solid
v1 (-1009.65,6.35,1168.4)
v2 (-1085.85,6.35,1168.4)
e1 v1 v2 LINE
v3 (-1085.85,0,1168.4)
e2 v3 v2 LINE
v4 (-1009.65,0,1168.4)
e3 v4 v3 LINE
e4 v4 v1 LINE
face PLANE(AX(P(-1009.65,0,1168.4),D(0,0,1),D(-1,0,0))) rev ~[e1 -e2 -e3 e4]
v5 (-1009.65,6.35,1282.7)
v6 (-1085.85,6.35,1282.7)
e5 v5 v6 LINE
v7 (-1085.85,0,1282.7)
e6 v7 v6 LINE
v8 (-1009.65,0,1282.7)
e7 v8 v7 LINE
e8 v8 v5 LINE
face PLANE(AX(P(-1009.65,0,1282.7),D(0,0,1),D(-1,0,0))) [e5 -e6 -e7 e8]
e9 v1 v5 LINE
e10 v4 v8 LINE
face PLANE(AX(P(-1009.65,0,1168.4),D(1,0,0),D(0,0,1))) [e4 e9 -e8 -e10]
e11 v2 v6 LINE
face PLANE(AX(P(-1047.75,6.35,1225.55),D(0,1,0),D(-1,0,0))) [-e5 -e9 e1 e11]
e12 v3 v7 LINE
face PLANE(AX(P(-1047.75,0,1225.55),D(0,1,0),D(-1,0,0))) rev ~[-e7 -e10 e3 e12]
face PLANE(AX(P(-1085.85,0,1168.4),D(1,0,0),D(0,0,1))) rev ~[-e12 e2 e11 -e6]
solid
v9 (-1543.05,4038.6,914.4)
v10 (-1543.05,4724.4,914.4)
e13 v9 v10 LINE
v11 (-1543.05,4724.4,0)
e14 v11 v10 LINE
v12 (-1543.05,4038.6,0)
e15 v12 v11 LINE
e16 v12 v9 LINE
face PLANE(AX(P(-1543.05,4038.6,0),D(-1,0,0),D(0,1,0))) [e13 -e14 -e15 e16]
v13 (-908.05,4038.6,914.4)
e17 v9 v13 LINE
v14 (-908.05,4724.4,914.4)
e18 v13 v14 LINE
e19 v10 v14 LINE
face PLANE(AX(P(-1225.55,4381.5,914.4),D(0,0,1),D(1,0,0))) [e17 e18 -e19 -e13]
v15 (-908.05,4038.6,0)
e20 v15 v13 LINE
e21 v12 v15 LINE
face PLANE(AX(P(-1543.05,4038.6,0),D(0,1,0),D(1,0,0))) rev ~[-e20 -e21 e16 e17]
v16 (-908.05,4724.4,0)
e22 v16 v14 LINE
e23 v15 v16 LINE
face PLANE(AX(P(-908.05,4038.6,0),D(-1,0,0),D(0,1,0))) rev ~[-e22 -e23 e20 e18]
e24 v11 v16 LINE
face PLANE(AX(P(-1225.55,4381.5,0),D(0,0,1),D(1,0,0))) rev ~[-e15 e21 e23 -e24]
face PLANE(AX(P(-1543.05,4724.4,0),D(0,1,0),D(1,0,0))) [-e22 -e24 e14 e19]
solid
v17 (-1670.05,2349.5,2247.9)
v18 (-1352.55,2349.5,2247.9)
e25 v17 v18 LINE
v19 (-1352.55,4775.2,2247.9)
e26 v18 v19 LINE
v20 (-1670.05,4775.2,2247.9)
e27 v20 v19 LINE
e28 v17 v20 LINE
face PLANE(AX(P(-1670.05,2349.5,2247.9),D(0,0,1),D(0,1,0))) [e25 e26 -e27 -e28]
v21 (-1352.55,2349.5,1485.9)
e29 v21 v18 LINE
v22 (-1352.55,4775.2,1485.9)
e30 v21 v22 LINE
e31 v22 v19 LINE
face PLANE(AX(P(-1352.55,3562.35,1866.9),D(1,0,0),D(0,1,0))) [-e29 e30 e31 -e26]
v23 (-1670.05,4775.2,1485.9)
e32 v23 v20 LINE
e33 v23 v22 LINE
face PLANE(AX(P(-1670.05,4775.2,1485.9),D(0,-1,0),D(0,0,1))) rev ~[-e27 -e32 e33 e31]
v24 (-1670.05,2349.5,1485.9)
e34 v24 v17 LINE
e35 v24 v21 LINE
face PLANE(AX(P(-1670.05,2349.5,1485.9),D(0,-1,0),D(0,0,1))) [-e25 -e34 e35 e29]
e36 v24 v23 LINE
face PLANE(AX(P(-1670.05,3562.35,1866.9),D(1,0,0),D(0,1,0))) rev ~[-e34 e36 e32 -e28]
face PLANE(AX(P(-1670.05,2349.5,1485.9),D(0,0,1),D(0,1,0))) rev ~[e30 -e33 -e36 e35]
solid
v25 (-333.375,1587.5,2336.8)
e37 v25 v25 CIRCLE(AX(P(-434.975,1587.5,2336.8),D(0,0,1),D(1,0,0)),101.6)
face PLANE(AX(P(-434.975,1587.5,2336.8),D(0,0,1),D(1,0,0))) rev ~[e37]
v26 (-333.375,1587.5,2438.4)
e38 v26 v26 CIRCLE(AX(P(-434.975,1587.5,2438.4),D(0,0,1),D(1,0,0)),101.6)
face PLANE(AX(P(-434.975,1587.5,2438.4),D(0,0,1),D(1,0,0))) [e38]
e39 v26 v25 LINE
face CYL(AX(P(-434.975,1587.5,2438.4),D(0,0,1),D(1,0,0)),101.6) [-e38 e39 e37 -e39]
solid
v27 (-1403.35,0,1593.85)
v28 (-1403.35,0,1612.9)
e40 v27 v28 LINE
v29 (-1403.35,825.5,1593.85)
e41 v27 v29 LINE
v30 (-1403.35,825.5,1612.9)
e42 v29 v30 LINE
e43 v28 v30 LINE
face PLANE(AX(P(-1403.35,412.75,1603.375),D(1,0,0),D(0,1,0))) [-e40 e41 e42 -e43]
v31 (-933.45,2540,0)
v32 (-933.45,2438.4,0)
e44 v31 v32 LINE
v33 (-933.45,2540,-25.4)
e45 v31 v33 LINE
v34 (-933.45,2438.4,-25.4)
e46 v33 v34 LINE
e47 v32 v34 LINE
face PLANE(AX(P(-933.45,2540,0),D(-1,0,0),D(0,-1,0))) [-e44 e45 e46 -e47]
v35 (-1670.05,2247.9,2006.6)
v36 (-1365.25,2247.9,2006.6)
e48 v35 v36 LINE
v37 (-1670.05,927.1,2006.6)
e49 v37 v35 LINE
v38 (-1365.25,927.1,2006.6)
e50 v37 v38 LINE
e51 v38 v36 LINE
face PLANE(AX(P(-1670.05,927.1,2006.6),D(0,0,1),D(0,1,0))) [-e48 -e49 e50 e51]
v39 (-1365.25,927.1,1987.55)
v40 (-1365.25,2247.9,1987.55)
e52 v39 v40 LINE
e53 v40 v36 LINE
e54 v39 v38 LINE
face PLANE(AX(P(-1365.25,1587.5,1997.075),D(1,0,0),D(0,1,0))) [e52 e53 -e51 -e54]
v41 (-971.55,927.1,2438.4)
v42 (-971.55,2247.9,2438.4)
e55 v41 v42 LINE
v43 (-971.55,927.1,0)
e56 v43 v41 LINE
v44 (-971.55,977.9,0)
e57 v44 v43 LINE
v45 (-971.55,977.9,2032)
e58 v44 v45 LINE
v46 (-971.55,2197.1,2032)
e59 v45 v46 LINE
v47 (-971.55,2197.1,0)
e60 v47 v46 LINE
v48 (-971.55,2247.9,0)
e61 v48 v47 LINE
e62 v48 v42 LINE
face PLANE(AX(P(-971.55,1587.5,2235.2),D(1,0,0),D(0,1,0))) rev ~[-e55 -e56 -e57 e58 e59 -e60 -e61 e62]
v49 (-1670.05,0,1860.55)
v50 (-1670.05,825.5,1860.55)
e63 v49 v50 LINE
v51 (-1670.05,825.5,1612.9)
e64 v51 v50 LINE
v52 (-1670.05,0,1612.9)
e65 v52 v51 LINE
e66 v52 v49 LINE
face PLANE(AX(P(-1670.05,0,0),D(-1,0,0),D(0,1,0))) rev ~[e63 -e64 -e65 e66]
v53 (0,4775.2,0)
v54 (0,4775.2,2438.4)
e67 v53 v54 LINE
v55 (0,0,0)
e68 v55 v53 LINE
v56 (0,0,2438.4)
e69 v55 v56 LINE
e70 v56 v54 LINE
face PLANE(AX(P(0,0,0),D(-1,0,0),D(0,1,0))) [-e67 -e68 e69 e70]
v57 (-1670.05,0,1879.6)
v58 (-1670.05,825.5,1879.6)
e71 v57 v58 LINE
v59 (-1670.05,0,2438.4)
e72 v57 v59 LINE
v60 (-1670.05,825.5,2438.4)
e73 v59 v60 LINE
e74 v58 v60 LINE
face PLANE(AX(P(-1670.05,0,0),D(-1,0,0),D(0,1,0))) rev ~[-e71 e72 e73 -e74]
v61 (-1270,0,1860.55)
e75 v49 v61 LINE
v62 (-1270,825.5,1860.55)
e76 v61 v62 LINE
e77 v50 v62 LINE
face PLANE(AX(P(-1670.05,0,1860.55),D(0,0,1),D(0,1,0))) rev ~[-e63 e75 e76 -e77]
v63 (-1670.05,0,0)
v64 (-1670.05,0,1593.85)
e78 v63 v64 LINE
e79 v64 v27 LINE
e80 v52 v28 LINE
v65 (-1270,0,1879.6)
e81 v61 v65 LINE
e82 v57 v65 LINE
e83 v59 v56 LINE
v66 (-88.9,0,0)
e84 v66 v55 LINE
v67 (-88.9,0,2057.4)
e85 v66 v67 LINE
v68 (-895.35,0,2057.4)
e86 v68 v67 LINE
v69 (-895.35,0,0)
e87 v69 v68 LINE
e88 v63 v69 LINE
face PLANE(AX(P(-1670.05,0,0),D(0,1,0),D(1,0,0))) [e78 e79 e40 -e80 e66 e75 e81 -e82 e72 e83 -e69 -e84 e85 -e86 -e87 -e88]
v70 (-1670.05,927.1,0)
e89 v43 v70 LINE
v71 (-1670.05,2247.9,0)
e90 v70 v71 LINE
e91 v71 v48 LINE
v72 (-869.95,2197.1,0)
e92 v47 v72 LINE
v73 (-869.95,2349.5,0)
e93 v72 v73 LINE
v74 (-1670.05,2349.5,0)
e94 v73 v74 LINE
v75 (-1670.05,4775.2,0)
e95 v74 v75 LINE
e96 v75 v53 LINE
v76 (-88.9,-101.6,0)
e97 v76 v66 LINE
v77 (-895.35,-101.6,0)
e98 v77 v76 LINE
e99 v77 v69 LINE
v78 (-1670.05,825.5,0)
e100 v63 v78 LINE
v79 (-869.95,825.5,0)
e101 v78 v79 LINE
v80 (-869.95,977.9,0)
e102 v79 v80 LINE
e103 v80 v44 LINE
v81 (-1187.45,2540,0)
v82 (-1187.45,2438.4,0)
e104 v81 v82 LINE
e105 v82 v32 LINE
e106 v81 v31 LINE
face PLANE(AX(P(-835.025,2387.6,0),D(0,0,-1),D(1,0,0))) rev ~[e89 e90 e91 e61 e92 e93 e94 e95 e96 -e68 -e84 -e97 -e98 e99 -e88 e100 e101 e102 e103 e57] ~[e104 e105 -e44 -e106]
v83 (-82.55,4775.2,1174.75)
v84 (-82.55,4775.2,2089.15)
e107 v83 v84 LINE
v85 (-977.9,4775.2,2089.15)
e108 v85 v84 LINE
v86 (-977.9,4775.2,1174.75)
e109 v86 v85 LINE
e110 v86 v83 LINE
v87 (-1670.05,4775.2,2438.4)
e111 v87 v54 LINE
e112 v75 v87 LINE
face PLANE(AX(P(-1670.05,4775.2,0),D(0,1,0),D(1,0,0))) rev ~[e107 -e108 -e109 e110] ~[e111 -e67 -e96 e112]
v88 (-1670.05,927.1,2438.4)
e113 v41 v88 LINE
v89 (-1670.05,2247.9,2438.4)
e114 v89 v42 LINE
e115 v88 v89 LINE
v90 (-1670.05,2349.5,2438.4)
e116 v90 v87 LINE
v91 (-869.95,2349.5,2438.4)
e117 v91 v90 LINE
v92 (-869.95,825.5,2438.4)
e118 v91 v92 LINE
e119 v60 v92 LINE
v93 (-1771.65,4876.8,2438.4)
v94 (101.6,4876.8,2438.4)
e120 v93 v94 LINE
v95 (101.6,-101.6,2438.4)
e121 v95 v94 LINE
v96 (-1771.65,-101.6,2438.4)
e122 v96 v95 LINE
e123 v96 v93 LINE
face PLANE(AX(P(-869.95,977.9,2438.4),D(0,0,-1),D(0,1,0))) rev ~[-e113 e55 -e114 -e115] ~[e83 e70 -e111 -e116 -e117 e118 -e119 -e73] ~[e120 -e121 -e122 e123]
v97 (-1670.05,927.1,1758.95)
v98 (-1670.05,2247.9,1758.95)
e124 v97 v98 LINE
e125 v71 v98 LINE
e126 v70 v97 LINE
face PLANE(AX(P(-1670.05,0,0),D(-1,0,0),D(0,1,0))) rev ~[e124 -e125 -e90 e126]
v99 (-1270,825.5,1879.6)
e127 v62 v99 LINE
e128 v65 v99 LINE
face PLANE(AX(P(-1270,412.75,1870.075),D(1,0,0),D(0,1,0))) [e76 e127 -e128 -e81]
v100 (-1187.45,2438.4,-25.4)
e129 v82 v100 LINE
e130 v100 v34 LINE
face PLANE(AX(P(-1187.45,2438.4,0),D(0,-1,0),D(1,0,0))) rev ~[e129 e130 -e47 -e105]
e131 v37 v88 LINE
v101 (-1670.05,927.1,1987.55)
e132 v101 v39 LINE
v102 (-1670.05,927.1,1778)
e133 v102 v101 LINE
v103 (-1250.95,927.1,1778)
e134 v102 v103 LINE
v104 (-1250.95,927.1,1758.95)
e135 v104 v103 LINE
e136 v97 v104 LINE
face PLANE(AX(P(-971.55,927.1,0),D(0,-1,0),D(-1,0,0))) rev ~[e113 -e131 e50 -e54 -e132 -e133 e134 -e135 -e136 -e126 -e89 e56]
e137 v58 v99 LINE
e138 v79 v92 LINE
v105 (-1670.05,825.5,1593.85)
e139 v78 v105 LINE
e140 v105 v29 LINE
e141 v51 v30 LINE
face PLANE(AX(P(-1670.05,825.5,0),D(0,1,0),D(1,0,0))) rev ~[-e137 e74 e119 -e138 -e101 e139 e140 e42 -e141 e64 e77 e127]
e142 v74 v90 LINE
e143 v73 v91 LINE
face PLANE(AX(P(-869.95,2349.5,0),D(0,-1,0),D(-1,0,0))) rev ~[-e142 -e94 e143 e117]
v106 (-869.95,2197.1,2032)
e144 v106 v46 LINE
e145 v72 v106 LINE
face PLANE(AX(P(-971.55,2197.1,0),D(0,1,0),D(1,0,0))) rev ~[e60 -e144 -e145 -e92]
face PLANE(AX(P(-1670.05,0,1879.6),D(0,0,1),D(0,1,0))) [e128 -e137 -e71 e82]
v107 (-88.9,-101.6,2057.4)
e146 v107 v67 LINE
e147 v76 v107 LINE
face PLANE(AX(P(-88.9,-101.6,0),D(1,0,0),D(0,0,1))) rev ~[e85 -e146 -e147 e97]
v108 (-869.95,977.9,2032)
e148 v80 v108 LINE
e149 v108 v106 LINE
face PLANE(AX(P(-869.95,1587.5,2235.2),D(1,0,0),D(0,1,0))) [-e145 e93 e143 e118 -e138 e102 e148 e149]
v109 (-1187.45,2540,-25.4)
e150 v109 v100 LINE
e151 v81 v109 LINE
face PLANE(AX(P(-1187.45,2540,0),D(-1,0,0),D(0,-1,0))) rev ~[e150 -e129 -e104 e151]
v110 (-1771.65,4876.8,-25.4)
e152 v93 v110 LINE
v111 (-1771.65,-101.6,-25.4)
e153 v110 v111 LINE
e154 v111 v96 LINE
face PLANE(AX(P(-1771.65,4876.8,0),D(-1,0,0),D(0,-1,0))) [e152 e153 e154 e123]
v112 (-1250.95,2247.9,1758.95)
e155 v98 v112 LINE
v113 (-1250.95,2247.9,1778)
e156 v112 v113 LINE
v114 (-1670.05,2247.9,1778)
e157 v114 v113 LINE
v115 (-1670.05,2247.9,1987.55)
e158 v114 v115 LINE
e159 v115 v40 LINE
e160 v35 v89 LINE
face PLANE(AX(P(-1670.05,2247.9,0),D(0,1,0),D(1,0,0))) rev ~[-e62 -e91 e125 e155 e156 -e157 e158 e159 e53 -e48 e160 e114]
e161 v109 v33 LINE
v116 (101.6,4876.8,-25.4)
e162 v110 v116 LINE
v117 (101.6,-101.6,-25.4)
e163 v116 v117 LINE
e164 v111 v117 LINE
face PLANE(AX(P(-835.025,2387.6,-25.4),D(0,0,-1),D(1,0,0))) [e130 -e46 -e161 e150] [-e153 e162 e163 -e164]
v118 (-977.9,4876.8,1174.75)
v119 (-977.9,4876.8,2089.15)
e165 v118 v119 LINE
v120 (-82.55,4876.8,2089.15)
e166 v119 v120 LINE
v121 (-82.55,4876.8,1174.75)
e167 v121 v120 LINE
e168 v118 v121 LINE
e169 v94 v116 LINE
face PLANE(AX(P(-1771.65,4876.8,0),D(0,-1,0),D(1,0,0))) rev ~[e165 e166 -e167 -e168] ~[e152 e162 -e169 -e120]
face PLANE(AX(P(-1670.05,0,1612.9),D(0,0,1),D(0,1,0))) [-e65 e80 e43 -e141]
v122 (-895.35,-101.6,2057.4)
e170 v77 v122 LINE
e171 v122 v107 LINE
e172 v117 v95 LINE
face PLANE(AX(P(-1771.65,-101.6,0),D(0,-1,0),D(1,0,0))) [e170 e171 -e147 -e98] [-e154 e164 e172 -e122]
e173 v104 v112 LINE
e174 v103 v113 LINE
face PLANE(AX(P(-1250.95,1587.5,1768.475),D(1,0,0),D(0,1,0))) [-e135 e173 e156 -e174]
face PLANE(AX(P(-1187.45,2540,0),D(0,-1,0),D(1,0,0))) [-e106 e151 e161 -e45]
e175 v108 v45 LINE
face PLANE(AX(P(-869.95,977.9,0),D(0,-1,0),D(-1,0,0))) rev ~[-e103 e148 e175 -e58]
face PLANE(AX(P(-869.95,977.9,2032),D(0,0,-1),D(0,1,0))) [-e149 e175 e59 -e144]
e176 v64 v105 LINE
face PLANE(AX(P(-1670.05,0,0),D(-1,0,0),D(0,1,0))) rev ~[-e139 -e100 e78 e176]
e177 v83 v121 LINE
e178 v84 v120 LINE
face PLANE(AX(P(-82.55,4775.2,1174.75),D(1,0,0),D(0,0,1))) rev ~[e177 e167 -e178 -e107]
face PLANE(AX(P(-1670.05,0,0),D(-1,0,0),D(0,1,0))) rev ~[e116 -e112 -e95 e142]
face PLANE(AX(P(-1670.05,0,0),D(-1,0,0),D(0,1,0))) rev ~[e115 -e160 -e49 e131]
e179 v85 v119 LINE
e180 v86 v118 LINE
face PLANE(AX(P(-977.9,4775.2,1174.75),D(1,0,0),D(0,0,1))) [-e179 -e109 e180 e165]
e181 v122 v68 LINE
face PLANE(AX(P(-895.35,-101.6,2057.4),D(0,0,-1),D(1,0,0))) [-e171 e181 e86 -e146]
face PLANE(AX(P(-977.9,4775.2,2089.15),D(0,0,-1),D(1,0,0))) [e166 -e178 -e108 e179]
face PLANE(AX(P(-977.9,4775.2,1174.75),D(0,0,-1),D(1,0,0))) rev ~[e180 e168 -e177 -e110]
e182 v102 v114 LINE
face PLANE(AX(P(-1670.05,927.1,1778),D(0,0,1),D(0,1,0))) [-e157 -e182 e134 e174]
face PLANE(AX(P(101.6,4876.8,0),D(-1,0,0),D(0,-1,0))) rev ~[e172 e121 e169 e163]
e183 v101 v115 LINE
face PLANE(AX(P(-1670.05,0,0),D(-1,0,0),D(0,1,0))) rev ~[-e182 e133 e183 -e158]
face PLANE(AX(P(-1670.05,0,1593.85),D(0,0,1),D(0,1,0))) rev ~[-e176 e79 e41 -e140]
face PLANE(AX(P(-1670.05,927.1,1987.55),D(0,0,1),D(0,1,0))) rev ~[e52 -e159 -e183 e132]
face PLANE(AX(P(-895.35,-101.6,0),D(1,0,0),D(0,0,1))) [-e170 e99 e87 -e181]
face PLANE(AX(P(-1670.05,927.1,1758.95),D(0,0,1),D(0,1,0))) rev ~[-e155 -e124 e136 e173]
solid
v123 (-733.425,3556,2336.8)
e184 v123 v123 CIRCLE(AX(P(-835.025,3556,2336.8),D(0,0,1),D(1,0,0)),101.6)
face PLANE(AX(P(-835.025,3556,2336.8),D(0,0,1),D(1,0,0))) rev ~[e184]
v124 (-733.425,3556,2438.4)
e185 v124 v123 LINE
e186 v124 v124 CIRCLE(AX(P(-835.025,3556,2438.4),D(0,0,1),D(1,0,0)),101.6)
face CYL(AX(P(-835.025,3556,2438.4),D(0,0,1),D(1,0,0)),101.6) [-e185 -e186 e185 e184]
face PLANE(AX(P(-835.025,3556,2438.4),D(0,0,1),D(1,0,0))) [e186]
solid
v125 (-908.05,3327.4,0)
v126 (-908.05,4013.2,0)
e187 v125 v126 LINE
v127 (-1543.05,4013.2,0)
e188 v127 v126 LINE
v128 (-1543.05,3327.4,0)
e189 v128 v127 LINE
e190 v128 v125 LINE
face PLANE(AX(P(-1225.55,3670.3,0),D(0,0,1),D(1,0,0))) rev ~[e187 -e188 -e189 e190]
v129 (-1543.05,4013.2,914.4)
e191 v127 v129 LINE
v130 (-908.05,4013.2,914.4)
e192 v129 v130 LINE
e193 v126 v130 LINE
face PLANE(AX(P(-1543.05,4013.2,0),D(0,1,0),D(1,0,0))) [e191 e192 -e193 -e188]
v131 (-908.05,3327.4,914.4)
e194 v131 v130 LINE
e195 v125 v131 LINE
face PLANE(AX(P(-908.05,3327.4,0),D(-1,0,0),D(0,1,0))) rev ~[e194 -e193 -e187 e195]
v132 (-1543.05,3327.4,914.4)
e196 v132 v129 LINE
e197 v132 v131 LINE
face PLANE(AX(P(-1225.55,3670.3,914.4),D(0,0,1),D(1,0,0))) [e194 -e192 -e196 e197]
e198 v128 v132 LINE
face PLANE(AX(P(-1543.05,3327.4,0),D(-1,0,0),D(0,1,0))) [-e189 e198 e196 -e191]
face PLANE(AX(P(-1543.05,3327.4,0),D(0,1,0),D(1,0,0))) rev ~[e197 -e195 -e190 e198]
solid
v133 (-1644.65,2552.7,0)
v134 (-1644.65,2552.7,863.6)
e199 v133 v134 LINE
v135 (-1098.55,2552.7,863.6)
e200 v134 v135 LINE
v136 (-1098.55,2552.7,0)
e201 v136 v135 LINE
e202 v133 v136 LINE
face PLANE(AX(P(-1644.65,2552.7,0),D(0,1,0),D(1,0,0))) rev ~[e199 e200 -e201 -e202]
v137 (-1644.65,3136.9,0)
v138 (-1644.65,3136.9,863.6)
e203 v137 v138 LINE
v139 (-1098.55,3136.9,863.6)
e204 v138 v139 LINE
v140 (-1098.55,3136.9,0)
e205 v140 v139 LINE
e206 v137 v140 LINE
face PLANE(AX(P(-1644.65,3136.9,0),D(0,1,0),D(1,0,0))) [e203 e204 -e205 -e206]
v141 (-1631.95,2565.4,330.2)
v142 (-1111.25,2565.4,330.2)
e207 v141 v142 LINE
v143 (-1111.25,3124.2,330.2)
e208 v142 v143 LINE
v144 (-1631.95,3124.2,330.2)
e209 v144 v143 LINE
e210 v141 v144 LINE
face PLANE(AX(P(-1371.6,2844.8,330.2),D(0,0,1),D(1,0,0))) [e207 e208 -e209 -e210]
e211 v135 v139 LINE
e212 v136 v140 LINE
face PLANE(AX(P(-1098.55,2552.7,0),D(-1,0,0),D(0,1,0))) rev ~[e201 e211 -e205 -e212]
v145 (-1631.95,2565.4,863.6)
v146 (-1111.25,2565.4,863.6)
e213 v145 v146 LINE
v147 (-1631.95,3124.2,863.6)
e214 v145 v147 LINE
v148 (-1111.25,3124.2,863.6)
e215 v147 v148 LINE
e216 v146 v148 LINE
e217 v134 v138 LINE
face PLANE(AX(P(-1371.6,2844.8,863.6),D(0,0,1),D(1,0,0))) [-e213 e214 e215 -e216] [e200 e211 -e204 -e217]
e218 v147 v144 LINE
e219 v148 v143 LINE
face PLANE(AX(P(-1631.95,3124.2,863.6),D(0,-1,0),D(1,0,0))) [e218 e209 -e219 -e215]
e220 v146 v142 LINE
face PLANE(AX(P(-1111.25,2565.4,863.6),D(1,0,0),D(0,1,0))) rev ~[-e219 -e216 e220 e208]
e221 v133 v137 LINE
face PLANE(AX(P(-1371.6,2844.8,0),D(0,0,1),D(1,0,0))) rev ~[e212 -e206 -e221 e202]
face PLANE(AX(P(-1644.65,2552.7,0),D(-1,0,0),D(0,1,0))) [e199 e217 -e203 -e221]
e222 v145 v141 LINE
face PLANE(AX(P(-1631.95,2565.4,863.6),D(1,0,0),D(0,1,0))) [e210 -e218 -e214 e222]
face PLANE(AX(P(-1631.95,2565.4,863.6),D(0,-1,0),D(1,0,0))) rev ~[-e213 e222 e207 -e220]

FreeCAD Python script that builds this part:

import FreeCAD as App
import Part
import Sketcher

V = App.Vector
Q = App.Units.Quantity

doc = App.newDocument("Part")
body = doc.addObject("PartDesign::Body", "Body")

sketch1 = body.newObject("Sketcher::SketchObject", "Sketch")
sketch1.AttachmentSupport = (doc.getObject("XY_Plane"), [""])
sketch1.MapMode = "FlatFace"
sketch1.addGeometry(Part.LineSegment(V(-1771.65, 4876.8, 0), V(-1771.65, -101.6, 0)), False)
sketch1.addGeometry(Part.LineSegment(V(-1771.65, -101.6, 0), V(101.6, -101.6, 0)), False)
sketch1.addGeometry(Part.LineSegment(V(101.6, -101.6, 0), V(101.6, 4876.8, 0)), False)
sketch1.addGeometry(Part.LineSegment(V(101.6, 4876.8, 0), V(-1771.65, 4876.8, 0)), False)
sketch1.addGeometry(Part.LineSegment(V(0, 0, 0), V(-1670.05, 0, 0)), False)
sketch1.addGeometry(Part.LineSegment(V(-1670.05, 0, 0), V(-1670.05, 4775.2, 0)), False)
sketch1.addGeometry(Part.LineSegment(V(-1670.05, 4775.2, 0), V(0, 4775.2, 0)), False)
sketch1.addGeometry(Part.LineSegment(V(0, 4775.2, 0), V(0, 0, 0)), False)
sketch1.addConstraint(Sketcher.Constraint("Coincident", 0, 2, 1, 1))
sketch1.addConstraint(Sketcher.Constraint("Coincident", 1, 2, 2, 1))
sketch1.addConstraint(Sketcher.Constraint("Coincident", 2, 2, 3, 1))
sketch1.addConstraint(Sketcher.Constraint("Coincident", 3, 2, 0, 1))
sketch1.addConstraint(Sketcher.Constraint("Coincident", 4, 2, 5, 1))
sketch1.addConstraint(Sketcher.Constraint("Coincident", 5, 2, 6, 1))
sketch1.addConstraint(Sketcher.Constraint("Coincident", 6, 2, 7, 1))
sketch1.addConstraint(Sketcher.Constraint("Coincident", 7, 2, 4, 1))
sketch1.addConstraint(Sketcher.Constraint("Vertical", 0))
sketch1.addConstraint(Sketcher.Constraint("Horizontal", 1))
sketch1.addConstraint(Sketcher.Constraint("Vertical", 2))
sketch1.addConstraint(Sketcher.Constraint("Horizontal", 3))
sketch1.addConstraint(Sketcher.Constraint("Horizontal", 4))
sketch1.addConstraint(Sketcher.Constraint("Vertical", 5))
sketch1.addConstraint(Sketcher.Constraint("Horizontal", 6))
sketch1.addConstraint(Sketcher.Constraint("Vertical", 7))
sketch1.addConstraint(Sketcher.Constraint("Coincident", 7, 2, -1, 1))
sketch1.addConstraint(Sketcher.Constraint("DistanceY", 0, 2, 0, 1, Q("196 in")))
sketch1.addConstraint(Sketcher.Constraint("DistanceY", 5, 1, 5, 2, Q("188 in")))
sketch1.addConstraint(Sketcher.Constraint("DistanceY", 0, 2, -1, 1, Q("4 in")))
sketch1.addConstraint(Sketcher.Constraint("DistanceX", -1, 1, 1, 2, Q("4 in")))
sketch1.addConstraint(Sketcher.Constraint("DistanceX", 0, 2, 4, 2, Q("4 in")))
sketch1.addConstraint(Sketcher.Constraint("DistanceX", 1, 1, 1, 2, Q("73.75 in")))
pad1 = body.newObject("PartDesign::Pad", "Pad")
pad1.Profile = sketch1
pad1.Length = Q("96 in")

sketch2 = body.newObject("Sketcher::SketchObject", "Sketch001")
sketch2.AttachmentSupport = (doc.getObject("XZ_Plane"), [""])
sketch2.MapMode = "FlatFace"
sketch2.AttachmentOffset = App.Placement(V(0, 0, 4 * 25.4), App.Rotation())
sketch2.addGeometry(Part.LineSegment(V(-895.35, 2057.4, 0), V(-895.35, 0, 0)), False)
sketch2.addGeometry(Part.LineSegment(V(-895.35, 0, 0), V(-88.9, 0, 0)), False)
sketch2.addGeometry(Part.LineSegment(V(-88.9, 0, 0), V(-88.9, 2057.4, 0)), False)
sketch2.addGeometry(Part.LineSegment(V(-88.9, 2057.4, 0), V(-895.35, 2057.4, 0)), False)
sketch2.addConstraint(Sketcher.Constraint("Coincident", 0, 2, 1, 1))
sketch2.addConstraint(Sketcher.Constraint("Coincident", 1, 2, 2, 1))
sketch2.addConstraint(Sketcher.Constraint("Coincident", 2, 2, 3, 1))
sketch2.addConstraint(Sketcher.Constraint("Coincident", 3, 2, 0, 1))
sketch2.addConstraint(Sketcher.Constraint("Vertical", 0))
sketch2.addConstraint(Sketcher.Constraint("Horizontal", 1))
sketch2.addConstraint(Sketcher.Constraint("Vertical", 2))
sketch2.addConstraint(Sketcher.Constraint("Horizontal", 3))
sketch2.addConstraint(Sketcher.Constraint("PointOnObject", 0, 2, -1))
sketch2.addConstraint(Sketcher.Constraint("DistanceY", 0, 2, 0, 1, Q("81 in")))
sketch2.addConstraint(Sketcher.Constraint("DistanceX", 1, 1, 1, 2, Q("31.75 in")))
sketch2.addConstraint(Sketcher.Constraint("DistanceX", 1, 2, -1, 1, Q("3.5 in")))
pocket1 = body.newObject("PartDesign::Pocket", "Pocket")
pocket1.Profile = sketch2
pocket1.Length = Q("4 in")

sketch3 = body.newObject("Sketcher::SketchObject", "Sketch002")
sketch3.AttachmentSupport = (doc.getObject("XZ_Plane"), [""])
sketch3.MapMode = "FlatFace"
sketch3.AttachmentOffset = App.Placement(V(0, 0, -188 * 25.4), App.Rotation())
sketch3.addGeometry(Part.LineSegment(V(-977.9, 2089.15, 0), V(-977.9, 1174.75, 0)), False)
sketch3.addGeometry(Part.LineSegment(V(-977.9, 1174.75, 0), V(-82.55, 1174.75, 0)), False)
sketch3.addGeometry(Part.LineSegment(V(-82.55, 1174.75, 0), V(-82.55, 2089.15, 0)), False)
sketch3.addGeometry(Part.LineSegment(V(-82.55, 2089.15, 0), V(-977.9, 2089.15, 0)), False)
sketch3.addConstraint(Sketcher.Constraint("Coincident", 0, 2, 1, 1))
sketch3.addConstraint(Sketcher.Constraint("Coincident", 1, 2, 2, 1))
sketch3.addConstraint(Sketcher.Constraint("Coincident", 2, 2, 3, 1))
sketch3.addConstraint(Sketcher.Constraint("Coincident", 3, 2, 0, 1))
sketch3.addConstraint(Sketcher.Constraint("Vertical", 0))
sketch3.addConstraint(Sketcher.Constraint("Horizontal", 1))
sketch3.addConstraint(Sketcher.Constraint("Vertical", 2))
sketch3.addConstraint(Sketcher.Constraint("Horizontal", 3))
sketch3.addConstraint(Sketcher.Constraint("DistanceY", 0, 2, 0, 1, Q("36 in")))
sketch3.addConstraint(Sketcher.Constraint("DistanceX", 1, 1, 1, 2, Q("35.25 in")))
sketch3.addConstraint(Sketcher.Constraint("DistanceX", 0, 2, -1, 1, Q("38.5 in")))
sketch3.addConstraint(Sketcher.Constraint("DistanceY", -1, 1, 0, 2, Q("46.25 in")))
pocket2 = body.newObject("PartDesign::Pocket", "Pocket001")
pocket2.Profile = sketch3
pocket2.Type = "ThroughAll"

sketch4 = body.newObject("Sketcher::SketchObject", "Sketch003")
sketch4.AttachmentSupport = (doc.getObject("XY_Plane"), [""])
sketch4.MapMode = "FlatFace"
sketch4.addGeometry(Part.LineSegment(V(-1771.65, -101.6, 0), V(-1771.65, 4876.8, 0)), False)
sketch4.addGeometry(Part.LineSegment(V(-1771.65, 4876.8, 0), V(101.6, 4876.8, 0)), False)
sketch4.addGeometry(Part.LineSegment(V(101.6, 4876.8, 0), V(101.6, -101.6, 0)), False)
sketch4.addGeometry(Part.LineSegment(V(101.6, -101.6, 0), V(-1771.65, -101.6, 0)), False)
sketch4.addGeometry(Part.LineSegment(V(-933.45, 2540, 0), V(-1187.45, 2540, 0)), False)
sketch4.addGeometry(Part.LineSegment(V(-1187.45, 2540, 0), V(-1187.45, 2438.4, 0)), False)
sketch4.addGeometry(Part.LineSegment(V(-1187.45, 2438.4, 0), V(-933.45, 2438.4, 0)), False)
sketch4.addGeometry(Part.LineSegment(V(-933.45, 2438.4, 0), V(-933.45, 2540, 0)), False)
sketch4.addConstraint(Sketcher.Constraint("Coincident", 0, 2, 1, 1))
sketch4.addConstraint(Sketcher.Constraint("Coincident", 1, 2, 2, 1))
sketch4.addConstraint(Sketcher.Constraint("Coincident", 2, 2, 3, 1))
sketch4.addConstraint(Sketcher.Constraint("Coincident", 3, 2, 0, 1))
sketch4.addConstraint(Sketcher.Constraint("Coincident", 4, 2, 5, 1))
sketch4.addConstraint(Sketcher.Constraint("Coincident", 5, 2, 6, 1))
sketch4.addConstraint(Sketcher.Constraint("Coincident", 6, 2, 7, 1))
sketch4.addConstraint(Sketcher.Constraint("Coincident", 7, 2, 4, 1))
sketch4.addConstraint(Sketcher.Constraint("Vertical", 0))
sketch4.addConstraint(Sketcher.Constraint("Horizontal", 1))
sketch4.addConstraint(Sketcher.Constraint("Vertical", 2))
sketch4.addConstraint(Sketcher.Constraint("Horizontal", 3))
sketch4.addConstraint(Sketcher.Constraint("Horizontal", 4))
sketch4.addConstraint(Sketcher.Constraint("Vertical", 5))
sketch4.addConstraint(Sketcher.Constraint("Horizontal", 6))
sketch4.addConstraint(Sketcher.Constraint("Vertical", 7))
sketch4.addConstraint(Sketcher.Constraint("DistanceX", 4, 2, 4, 1, Q("10 in")))
sketch4.addConstraint(Sketcher.Constraint("DistanceY", 0, 1, 0, 2, Q("196 in")))
sketch4.addConstraint(Sketcher.Constraint("DistanceY", 5, 2, 5, 1, Q("4 in")))
sketch4.addConstraint(Sketcher.Constraint("DistanceY", -1, 1, 0, 2, Q("192 in")))
sketch4.addConstraint(Sketcher.Constraint("DistanceX", -1, 1, 1, 2, Q("4 in")))
sketch4.addConstraint(Sketcher.Constraint("DistanceY", -1, 1, 4, 2, Q("100 in")))
sketch4.addConstraint(Sketcher.Constraint("DistanceX", 0, 2, 4, 2, Q("23 in")))
sketch4.addConstraint(Sketcher.Constraint("DistanceX", 1, 1, 1, 2, Q("73.75 in")))
pad2 = body.newObject("PartDesign::Pad", "Pad001")
pad2.Profile = sketch4
pad2.Length = Q("1 in")
pad2.Reversed = True

sketch5 = body.newObject("Sketcher::SketchObject", "Sketch004")
sketch5.AttachmentSupport = (doc.getObject("XY_Plane"), [""])
sketch5.MapMode = "FlatFace"
sketch5.addGeometry(Part.LineSegment(V(-1670.05, 927.1, 0), V(-1670.05, 825.5, 0)), False)
sketch5.addGeometry(Part.LineSegment(V(-1670.05, 825.5, 0), V(-869.95, 825.5, 0)), False)
sketch5.addGeometry(Part.LineSegment(V(-869.95, 825.5, 0), V(-869.95, 977.9, 0)), False)
sketch5.addGeometry(Part.LineSegment(V(-869.95, 977.9, 0), V(-971.55, 977.9, 0)), False)
sketch5.addGeometry(Part.LineSegment(V(-971.55, 977.9, 0), V(-971.55, 927.1, 0)), False)
sketch5.addGeometry(Part.LineSegment(V(-971.55, 927.1, 0), V(-1670.05, 927.1, 0)), False)
sketch5.addGeometry(Part.LineSegment(V(-1670.05, 2349.5, 0), V(-1670.05, 2247.9, 0)), False)
sketch5.addGeometry(Part.LineSegment(V(-1670.05, 2247.9, 0), V(-971.55, 2247.9, 0)), False)
sketch5.addGeometry(Part.LineSegment(V(-971.55, 2247.9, 0), V(-971.55, 2197.1, 0)), False)
sketch5.addGeometry(Part.LineSegment(V(-971.55, 2197.1, 0), V(-869.95, 2197.1, 0)), False)
sketch5.addGeometry(Part.LineSegment(V(-869.95, 2197.1, 0), V(-869.95, 2349.5, 0)), False)
sketch5.addGeometry(Part.LineSegment(V(-869.95, 2349.5, 0), V(-1670.05, 2349.5, 0)), False)
sketch5.addConstraint(Sketcher.Constraint("Coincident", 0, 2, 1, 1))
sketch5.addConstraint(Sketcher.Constraint("Coincident", 1, 2, 2, 1))
sketch5.addConstraint(Sketcher.Constraint("Coincident", 2, 2, 3, 1))
sketch5.addConstraint(Sketcher.Constraint("Coincident", 3, 2, 4, 1))
sketch5.addConstraint(Sketcher.Constraint("Coincident", 4, 2, 5, 1))
sketch5.addConstraint(Sketcher.Constraint("Coincident", 5, 2, 0, 1))
sketch5.addConstraint(Sketcher.Constraint("Coincident", 6, 2, 7, 1))
sketch5.addConstraint(Sketcher.Constraint("Coincident", 7, 2, 8, 1))
sketch5.addConstraint(Sketcher.Constraint("Coincident", 8, 2, 9, 1))
sketch5.addConstraint(Sketcher.Constraint("Coincident", 9, 2, 10, 1))
sketch5.addConstraint(Sketcher.Constraint("Coincident", 10, 2, 11, 1))
sketch5.addConstraint(Sketcher.Constraint("Coincident", 11, 2, 6, 1))
sketch5.addConstraint(Sketcher.Constraint("Vertical", 0))
sketch5.addConstraint(Sketcher.Constraint("Horizontal", 1))
sketch5.addConstraint(Sketcher.Constraint("Vertical", 2))
sketch5.addConstraint(Sketcher.Constraint("Horizontal", 3))
sketch5.addConstraint(Sketcher.Constraint("Vertical", 4))
sketch5.addConstraint(Sketcher.Constraint("Horizontal", 5))
sketch5.addConstraint(Sketcher.Constraint("Vertical", 6))
sketch5.addConstraint(Sketcher.Constraint("Horizontal", 7))
sketch5.addConstraint(Sketcher.Constraint("Vertical", 8))
sketch5.addConstraint(Sketcher.Constraint("Horizontal", 9))
sketch5.addConstraint(Sketcher.Constraint("Vertical", 10))
sketch5.addConstraint(Sketcher.Constraint("Horizontal", 11))
sketch5.addConstraint(Sketcher.Constraint("Vertical", 5, 2, 6, 2))
sketch5.addConstraint(Sketcher.Constraint("Vertical", 4, 2, 7, 2))
sketch5.addConstraint(Sketcher.Constraint("Vertical", 2, 2, 9, 2))
sketch5.addConstraint(Sketcher.Constraint("Equal", 9, 0))
sketch5.addConstraint(Sketcher.Constraint("Equal", 0, 6))
sketch5.addConstraint(Sketcher.Constraint("Equal", 4, 8))
sketch5.addConstraint(Sketcher.Constraint("DistanceX", 3, 2, 3, 1, Q("4 in")))
sketch5.addConstraint(Sketcher.Constraint("DistanceY", 2, 1, 2, 2, Q("6 in")))
sketch5.addConstraint(Sketcher.Constraint("DistanceX", 1, 1, 1, 2, Q("31.5 in")))
sketch5.addConstraint(Sketcher.Constraint("DistanceY", 5, 2, 6, 2, Q("52 in")))
sketch5.addConstraint(Sketcher.Constraint("DistanceY", -1, 1, 0, 2, Q("32.5 in")))
sketch5.addConstraint(Sketcher.Constraint("DistanceX", 0, 2, -1, 1, Q("65.75 in")))
pad3 = body.newObject("PartDesign::Pad", "Pad002")
pad3.Profile = sketch5
pad3.Length = Q("96 in")

sketch6 = body.newObject("Sketcher::SketchObject", "Sketch005")
sketch6.AttachmentSupport = (doc.getObject("YZ_Plane"), [""])
sketch6.MapMode = "FlatFace"
sketch6.AttachmentOffset = App.Placement(V(0, 0, -34.25 * 25.4), App.Rotation())
sketch6.addGeometry(Part.LineSegment(V(977.9, 2438.4, 0), V(977.9, 2032, 0)), False)
sketch6.addGeometry(Part.LineSegment(V(977.9, 2032, 0), V(2197.1, 2032, 0)), False)
sketch6.addGeometry(Part.LineSegment(V(2197.1, 2032, 0), V(2197.1, 2438.4, 0)), False)
sketch6.addGeometry(Part.LineSegment(V(2197.1, 2438.4, 0), V(977.9, 2438.4, 0)), False)
sketch6.addConstraint(Sketcher.Constraint("Coincident", 0, 2, 1, 1))
sketch6.addConstraint(Sketcher.Constraint("Coincident", 1, 2, 2, 1))
sketch6.addConstraint(Sketcher.Constraint("Coincident", 2, 2, 3, 1))
sketch6.addConstraint(Sketcher.Constraint("Coincident", 3, 2, 0, 1))
sketch6.addConstraint(Sketcher.Constraint("Vertical", 0))
sketch6.addConstraint(Sketcher.Constraint("Horizontal", 1))
sketch6.addConstraint(Sketcher.Constraint("Vertical", 2))
sketch6.addConstraint(Sketcher.Constraint("Horizontal", 3))
sketch6.addConstraint(Sketcher.Constraint("DistanceX", 1, 1, 1, 2, Q("48 in")))
sketch6.addConstraint(Sketcher.Constraint("DistanceY", 0, 2, 0, 1, Q("16 in")))
sketch6.addConstraint(Sketcher.Constraint("DistanceY", -1, 1, 0, 2, Q("80 in")))
sketch6.addConstraint(Sketcher.Constraint("DistanceX", -1, 1, 0, 2, Q("38.5 in")))
pad4 = body.newObject("PartDesign::Pad", "Pad003")
pad4.Profile = sketch6
pad4.Length = Q("4 in")
pad4.Reversed = True

sketch7 = body.newObject("Sketcher::SketchObject", "Sketch006")
sketch7.AttachmentSupport = (doc.getObject("YZ_Plane"), [""])
sketch7.MapMode = "FlatFace"
sketch7.AttachmentOffset = App.Placement(V(0, 0, -65.75 * 25.4), App.Rotation())
sketch7.addGeometry(Part.LineSegment(V(0, 1879.6, 0), V(0, 1860.55, 0)), False)
sketch7.addGeometry(Part.LineSegment(V(0, 1860.55, 0), V(825.5, 1860.55, 0)), False)
sketch7.addGeometry(Part.LineSegment(V(825.5, 1860.55, 0), V(825.5, 1879.6, 0)), False)
sketch7.addGeometry(Part.LineSegment(V(825.5, 1879.6, 0), V(0, 1879.6, 0)), False)
sketch7.addConstraint(Sketcher.Constraint("Coincident", 0, 2, 1, 1))
sketch7.addConstraint(Sketcher.Constraint("Coincident", 1, 2, 2, 1))
sketch7.addConstraint(Sketcher.Constraint("Coincident", 2, 2, 3, 1))
sketch7.addConstraint(Sketcher.Constraint("Coincident", 3, 2, 0, 1))
sketch7.addConstraint(Sketcher.Constraint("Vertical", 0))
sketch7.addConstraint(Sketcher.Constraint("Horizontal", 1))
sketch7.addConstraint(Sketcher.Constraint("Vertical", 2))
sketch7.addConstraint(Sketcher.Constraint("Horizontal", 3))
sketch7.addConstraint(Sketcher.Constraint("PointOnObject", 0, 2, -2))
sketch7.addConstraint(Sketcher.Constraint("DistanceX", 1, 1, 1, 2, Q("32.5 in")))
sketch7.addConstraint(Sketcher.Constraint("DistanceY", -1, 1, 2, 2, Q("74 in")))
sketch7.addConstraint(Sketcher.Constraint("DistanceY", 0, 2, 0, 1, Q("0.75 in")))
pad5 = body.newObject("PartDesign::Pad", "Pad004")
pad5.Profile = sketch7
pad5.Length = Q("15.75 in")

sketch8 = body.newObject("Sketcher::SketchObject", "Sketch007")
sketch8.AttachmentSupport = (doc.getObject("YZ_Plane"), [""])
sketch8.MapMode = "FlatFace"
sketch8.AttachmentOffset = App.Placement(V(0, 0, -65.75 * 25.4), App.Rotation())
sketch8.addGeometry(Part.LineSegment(V(0, 1612.9, 0), V(0, 1593.85, 0)), False)
sketch8.addGeometry(Part.LineSegment(V(0, 1593.85, 0), V(825.5, 1593.85, 0)), False)
sketch8.addGeometry(Part.LineSegment(V(825.5, 1593.85, 0), V(825.5, 1612.9, 0)), False)
sketch8.addGeometry(Part.LineSegment(V(825.5, 1612.9, 0), V(0, 1612.9, 0)), False)
sketch8.addConstraint(Sketcher.Constraint("Coincident", 0, 2, 1, 1))
sketch8.addConstraint(Sketcher.Constraint("Coincident", 1, 2, 2, 1))
sketch8.addConstraint(Sketcher.Constraint("Coincident", 2, 2, 3, 1))
sketch8.addConstraint(Sketcher.Constraint("Coincident", 3, 2, 0, 1))
sketch8.addConstraint(Sketcher.Constraint("Vertical", 0))
sketch8.addConstraint(Sketcher.Constraint("Horizontal", 1))
sketch8.addConstraint(Sketcher.Constraint("Vertical", 2))
sketch8.addConstraint(Sketcher.Constraint("Horizontal", 3))
sketch8.addConstraint(Sketcher.Constraint("PointOnObject", 0, 2, -2))
sketch8.addConstraint(Sketcher.Constraint("DistanceX", 1, 1, 1, 2, Q("32.5 in")))
sketch8.addConstraint(Sketcher.Constraint("DistanceY", 0, 2, 0, 1, Q("0.75 in")))
sketch8.addConstraint(Sketcher.Constraint("DistanceY", -1, 1, 2, 2, Q("63.5 in")))
pad6 = body.newObject("PartDesign::Pad", "Pad005")
pad6.Profile = sketch8
pad6.Length = Q("10.5 in")

sketch9 = body.newObject("Sketcher::SketchObject", "Sketch008")
sketch9.AttachmentSupport = (doc.getObject("YZ_Plane"), [""])
sketch9.MapMode = "FlatFace"
sketch9.AttachmentOffset = App.Placement(V(0, 0, -65.75 * 25.4), App.Rotation())
sketch9.addGeometry(Part.LineSegment(V(927.1, 2006.6, 0), V(927.1, 1987.55, 0)), False)
sketch9.addGeometry(Part.LineSegment(V(927.1, 1987.55, 0), V(2247.9, 1987.55, 0)), False)
sketch9.addGeometry(Part.LineSegment(V(2247.9, 1987.55, 0), V(2247.9, 2006.6, 0)), False)
sketch9.addGeometry(Part.LineSegment(V(2247.9, 2006.6, 0), V(927.1, 2006.6, 0)), False)
sketch9.addConstraint(Sketcher.Constraint("Coincident", 0, 2, 1, 1))
sketch9.addConstraint(Sketcher.Constraint("Coincident", 1, 2, 2, 1))
sketch9.addConstraint(Sketcher.Constraint("Coincident", 2, 2, 3, 1))
sketch9.addConstraint(Sketcher.Constraint("Coincident", 3, 2, 0, 1))
sketch9.addConstraint(Sketcher.Constraint("Vertical", 0))
sketch9.addConstraint(Sketcher.Constraint("Horizontal", 1))
sketch9.addConstraint(Sketcher.Constraint("Vertical", 2))
sketch9.addConstraint(Sketcher.Constraint("Horizontal", 3))
sketch9.addConstraint(Sketcher.Constraint("DistanceX", 1, 1, 1, 2, Q("52 in")))
sketch9.addConstraint(Sketcher.Constraint("DistanceY", -1, 1, 2, 2, Q("79 in")))
sketch9.addConstraint(Sketcher.Constraint("DistanceY", 0, 2, 0, 1, Q("0.75 in")))
sketch9.addConstraint(Sketcher.Constraint("DistanceX", -1, 1, 0, 2, Q("36.5 in")))
pad7 = body.newObject("PartDesign::Pad", "Pad006")
pad7.Profile = sketch9
pad7.Length = Q("12 in")

sketch10 = body.newObject("Sketcher::SketchObject", "Sketch009")
sketch10.AttachmentSupport = (doc.getObject("YZ_Plane"), [""])
sketch10.MapMode = "FlatFace"
sketch10.AttachmentOffset = App.Placement(V(0, 0, -65.75 * 25.4), App.Rotation())
sketch10.addGeometry(Part.LineSegment(V(927.1, 1778, 0), V(927.1, 1758.95, 0)), False)
sketch10.addGeometry(Part.LineSegment(V(927.1, 1758.95, 0), V(2247.9, 1758.95, 0)), False)
sketch10.addGeometry(Part.LineSegment(V(2247.9, 1758.95, 0), V(2247.9, 1778, 0)), False)
sketch10.addGeometry(Part.LineSegment(V(2247.9, 1778, 0), V(927.1, 1778, 0)), False)
sketch10.addConstraint(Sketcher.Constraint("Coincident", 0, 2, 1, 1))
sketch10.addConstraint(Sketcher.Constraint("Coincident", 1, 2, 2, 1))
sketch10.addConstraint(Sketcher.Constraint("Coincident", 2, 2, 3, 1))
sketch10.addConstraint(Sketcher.Constraint("Coincident", 3, 2, 0, 1))
sketch10.addConstraint(Sketcher.Constraint("Vertical", 0))
sketch10.addConstraint(Sketcher.Constraint("Horizontal", 1))
sketch10.addConstraint(Sketcher.Constraint("Vertical", 2))
sketch10.addConstraint(Sketcher.Constraint("Horizontal", 3))
sketch10.addConstraint(Sketcher.Constraint("DistanceX", 1, 1, 1, 2, Q("52 in")))
sketch10.addConstraint(Sketcher.Constraint("DistanceY", -1, 1, 2, 2, Q("70 in")))
sketch10.addConstraint(Sketcher.Constraint("DistanceY", 0, 2, 0, 1, Q("0.75 in")))
sketch10.addConstraint(Sketcher.Constraint("DistanceX", -1, 1, 0, 2, Q("36.5 in")))
pad8 = body.newObject("PartDesign::Pad", "Pad007")
pad8.Profile = sketch10
pad8.Length = Q("16.5 in")
body2 = doc.addObject("PartDesign::Body", "Body001")
body2.AllowCompound = True

sketch11 = body2.newObject("Sketcher::SketchObject", "Sketch010")
sketch11.AttachmentSupport = (doc.getObject("XY_Plane001"), [""])
sketch11.MapMode = "FlatFace"
sketch11.addGeometry(Part.LineSegment(V(-1543.05, 4724.4, 0), V(-1543.05, 4038.6, 0)), False)
sketch11.addGeometry(Part.LineSegment(V(-1543.05, 4038.6, 0), V(-908.05, 4038.6, 0)), False)
sketch11.addGeometry(Part.LineSegment(V(-908.05, 4038.6, 0), V(-908.05, 4724.4, 0)), False)
sketch11.addGeometry(Part.LineSegment(V(-908.05, 4724.4, 0), V(-1543.05, 4724.4, 0)), False)
sketch11.addGeometry(Part.LineSegment(V(-1543.05, 4013.2, 0), V(-1543.05, 3327.4, 0)), False)
sketch11.addGeometry(Part.LineSegment(V(-1543.05, 3327.4, 0), V(-908.05, 3327.4, 0)), False)
sketch11.addGeometry(Part.LineSegment(V(-908.05, 3327.4, 0), V(-908.05, 4013.2, 0)), False)
sketch11.addGeometry(Part.LineSegment(V(-908.05, 4013.2, 0), V(-1543.05, 4013.2, 0)), False)
sketch11.addConstraint(Sketcher.Constraint("Coincident", 0, 2, 1, 1))
sketch11.addConstraint(Sketcher.Constraint("Coincident", 1, 2, 2, 1))
sketch11.addConstraint(Sketcher.Constraint("Coincident", 2, 2, 3, 1))
sketch11.addConstraint(Sketcher.Constraint("Coincident", 3, 2, 0, 1))
sketch11.addConstraint(Sketcher.Constraint("Coincident", 4, 2, 5, 1))
sketch11.addConstraint(Sketcher.Constraint("Coincident", 5, 2, 6, 1))
sketch11.addConstraint(Sketcher.Constraint("Coincident", 6, 2, 7, 1))
sketch11.addConstraint(Sketcher.Constraint("Coincident", 7, 2, 4, 1))
sketch11.addConstraint(Sketcher.Constraint("Vertical", 0))
sketch11.addConstraint(Sketcher.Constraint("Horizontal", 1))
sketch11.addConstraint(Sketcher.Constraint("Vertical", 2))
sketch11.addConstraint(Sketcher.Constraint("Horizontal", 3))
sketch11.addConstraint(Sketcher.Constraint("Vertical", 4))
sketch11.addConstraint(Sketcher.Constraint("Horizontal", 5))
sketch11.addConstraint(Sketcher.Constraint("Vertical", 6))
sketch11.addConstraint(Sketcher.Constraint("Horizontal", 7))
sketch11.addConstraint(Sketcher.Constraint("Vertical", 3, 2, 4, 2))
sketch11.addConstraint(Sketcher.Constraint("Vertical", 2, 2, 5, 2))
sketch11.addConstraint(Sketcher.Constraint("Equal", 2, 4))
sketch11.addConstraint(Sketcher.Constraint("DistanceX", 1, 1, 1, 2, Q("25 in")))
sketch11.addConstraint(Sketcher.Constraint("DistanceY", 0, 2, 0, 1, Q("27 in")))
sketch11.addConstraint(Sketcher.Constraint("DistanceY", -1, 1, 0, 2, Q("159 in")))
sketch11.addConstraint(Sketcher.Constraint("DistanceY", -1, 1, 4, 2, Q("131 in")))
sketch11.addConstraint(Sketcher.Constraint("DistanceX", 0, 2, -1, 1, Q("60.75 in")))
pad9 = body2.newObject("PartDesign::Pad", "Pad008")
pad9.Profile = sketch11
pad9.Length = Q("36 in")
body3 = doc.addObject("PartDesign::Body", "Body002")

sketch12 = body3.newObject("Sketcher::SketchObject", "Sketch011")
sketch12.AttachmentSupport = (doc.getObject("XY_Plane002"), [""])
sketch12.MapMode = "FlatFace"
sketch12.addGeometry(Part.LineSegment(V(-1644.65, 3136.9, 0), V(-1644.65, 2552.7, 0)), False)
sketch12.addGeometry(Part.LineSegment(V(-1644.65, 2552.7, 0), V(-1098.55, 2552.7, 0)), False)
sketch12.addGeometry(Part.LineSegment(V(-1098.55, 2552.7, 0), V(-1098.55, 3136.9, 0)), False)
sketch12.addGeometry(Part.LineSegment(V(-1098.55, 3136.9, 0), V(-1644.65, 3136.9, 0)), False)
sketch12.addConstraint(Sketcher.Constraint("Coincident", 0, 2, 1, 1))
sketch12.addConstraint(Sketcher.Constraint("Coincident", 1, 2, 2, 1))
sketch12.addConstraint(Sketcher.Constraint("Coincident", 2, 2, 3, 1))
sketch12.addConstraint(Sketcher.Constraint("Coincident", 3, 2, 0, 1))
sketch12.addConstraint(Sketcher.Constraint("Vertical", 0))
sketch12.addConstraint(Sketcher.Constraint("Horizontal", 1))
sketch12.addConstraint(Sketcher.Constraint("Vertical", 2))
sketch12.addConstraint(Sketcher.Constraint("Horizontal", 3))
sketch12.addConstraint(Sketcher.Constraint("DistanceY", 0, 2, 0, 1, Q("23 in")))
sketch12.addConstraint(Sketcher.Constraint("DistanceX", 1, 1, 1, 2, Q("21.5 in")))
sketch12.addConstraint(Sketcher.Constraint("DistanceY", -1, 1, 0, 2, Q("100.5 in")))
sketch12.addConstraint(Sketcher.Constraint("DistanceX", 0, 2, -1, 1, Q("64.75 in")))
pad10 = body3.newObject("PartDesign::Pad", "Pad009")
pad10.Profile = sketch12
pad10.Length = Q("34 in")

sketch13 = body3.newObject("Sketcher::SketchObject", "Sketch012")
sketch13.AttachmentSupport = (doc.getObject("XY_Plane002"), [""])
sketch13.MapMode = "FlatFace"
sketch13.AttachmentOffset = App.Placement(V(0, 0, 34 * 25.4), App.Rotation())
sketch13.addGeometry(Part.LineSegment(V(-1631.95, 3124.2, 0), V(-1631.95, 2565.4, 0)), False)
sketch13.addGeometry(Part.LineSegment(V(-1631.95, 2565.4, 0), V(-1111.25, 2565.4, 0)), False)
sketch13.addGeometry(Part.LineSegment(V(-1111.25, 2565.4, 0), V(-1111.25, 3124.2, 0)), False)
sketch13.addGeometry(Part.LineSegment(V(-1111.25, 3124.2, 0), V(-1631.95, 3124.2, 0)), False)
sketch13.addConstraint(Sketcher.Constraint("Coincident", 0, 2, 1, 1))
sketch13.addConstraint(Sketcher.Constraint("Coincident", 1, 2, 2, 1))
sketch13.addConstraint(Sketcher.Constraint("Coincident", 2, 2, 3, 1))
sketch13.addConstraint(Sketcher.Constraint("Coincident", 3, 2, 0, 1))
sketch13.addConstraint(Sketcher.Constraint("Vertical", 0))
sketch13.addConstraint(Sketcher.Constraint("Horizontal", 1))
sketch13.addConstraint(Sketcher.Constraint("Vertical", 2))
sketch13.addConstraint(Sketcher.Constraint("Horizontal", 3))
sketch13.addConstraint(Sketcher.Constraint("DistanceY", 0, 2, 0, 1, Q("22 in")))
sketch13.addConstraint(Sketcher.Constraint("DistanceX", 1, 1, 1, 2, Q("20.5 in")))
sketch13.addConstraint(Sketcher.Constraint("DistanceY", -1, 1, 0, 2, Q("101 in")))
sketch13.addConstraint(Sketcher.Constraint("DistanceX", 0, 2, -1, 1, Q("64.25 in")))
pocket3 = body3.newObject("PartDesign::Pocket", "Pocket002")
pocket3.Profile = sketch13
pocket3.Length = Q("21 in")
body4 = doc.addObject("PartDesign::Body", "Body003")

sketch14 = body4.newObject("Sketcher::SketchObject", "Sketch013")
sketch14.AttachmentSupport = (doc.getObject("YZ_Plane003"), [""])
sketch14.MapMode = "FlatFace"
sketch14.AttachmentOffset = App.Placement(V(0, 0, -65.75 * 25.4), App.Rotation())
sketch14.addGeometry(Part.LineSegment(V(2349.5, 2247.9, 0), V(2349.5, 1485.9, 0)), False)
sketch14.addGeometry(Part.LineSegment(V(2349.5, 1485.9, 0), V(4775.2, 1485.9, 0)), False)
sketch14.addGeometry(Part.LineSegment(V(4775.2, 1485.9, 0), V(4775.2, 2247.9, 0)), False)
sketch14.addGeometry(Part.LineSegment(V(4775.2, 2247.9, 0), V(2349.5, 2247.9, 0)), False)
sketch14.addConstraint(Sketcher.Constraint("Coincident", 0, 2, 1, 1))
sketch14.addConstraint(Sketcher.Constraint("Coincident", 1, 2, 2, 1))
sketch14.addConstraint(Sketcher.Constraint("Coincident", 2, 2, 3, 1))
sketch14.addConstraint(Sketcher.Constraint("Coincident", 3, 2, 0, 1))
sketch14.addConstraint(Sketcher.Constraint("Vertical", 0))
sketch14.addConstraint(Sketcher.Constraint("Horizontal", 1))
sketch14.addConstraint(Sketcher.Constraint("Vertical", 2))
sketch14.addConstraint(Sketcher.Constraint("Horizontal", 3))
sketch14.addConstraint(Sketcher.Constraint("DistanceY", 0, 2, 0, 1, Q("30 in")))
sketch14.addConstraint(Sketcher.Constraint("DistanceX", 1, 1, 1, 2, Q("95.5 in")))
sketch14.addConstraint(Sketcher.Constraint("DistanceX", -1, 1, 1, 2, Q("188 in")))
sketch14.addConstraint(Sketcher.Constraint("DistanceY", -1, 1, 0, 2, Q("58.5 in")))
pad11 = body4.newObject("PartDesign::Pad", "Pad010")
pad11.Profile = sketch14
pad11.Length = Q("12.5 in")
body5 = doc.addObject("PartDesign::Body", "Body004")

sketch15 = body5.newObject("Sketcher::SketchObject", "Sketch014")
sketch15.AttachmentSupport = (doc.getObject("XZ_Plane004"), [""])
sketch15.MapMode = "FlatFace"
sketch15.addGeometry(Part.LineSegment(V(-1009.65, 1282.7, 0), V(-1009.65, 1168.4, 0)), False)
sketch15.addGeometry(Part.LineSegment(V(-1009.65, 1168.4, 0), V(-1085.85, 1168.4, 0)), False)
sketch15.addGeometry(Part.LineSegment(V(-1085.85, 1168.4, 0), V(-1085.85, 1282.7, 0)), False)
sketch15.addGeometry(Part.LineSegment(V(-1085.85, 1282.7, 0), V(-1009.65, 1282.7, 0)), False)
sketch15.addConstraint(Sketcher.Constraint("Coincident", 0, 2, 1, 1))
sketch15.addConstraint(Sketcher.Constraint("Coincident", 1, 2, 2, 1))
sketch15.addConstraint(Sketcher.Constraint("Coincident", 2, 2, 3, 1))
sketch15.addConstraint(Sketcher.Constraint("Coincident", 3, 2, 0, 1))
sketch15.addConstraint(Sketcher.Constraint("Vertical", 0))
sketch15.addConstraint(Sketcher.Constraint("Horizontal", 1))
sketch15.addConstraint(Sketcher.Constraint("Vertical", 2))
sketch15.addConstraint(Sketcher.Constraint("Horizontal", 3))
sketch15.addConstraint(Sketcher.Constraint("DistanceX", 1, 2, 1, 1, Q("3 in")))
sketch15.addConstraint(Sketcher.Constraint("DistanceY", 0, 2, 0, 1, Q("4.5 in")))
sketch15.addConstraint(Sketcher.Constraint("DistanceY", -1, 1, 0, 2, Q("46 in")))
sketch15.addConstraint(Sketcher.Constraint("DistanceX", 0, 2, -1, 1, Q("39.75 in")))
pad12 = body5.newObject("PartDesign::Pad", "Pad011")
pad12.Profile = sketch15
pad12.Length = Q("0.25 in")
pad12.Reversed = True
body6 = doc.addObject("PartDesign::Body", "Body005")
body6.AllowCompound = True

sketch16 = body6.newObject("Sketcher::SketchObject", "Sketch015")
sketch16.AttachmentSupport = (doc.getObject("XY_Plane005"), [""])
sketch16.MapMode = "FlatFace"
sketch16.AttachmentOffset = App.Placement(V(0, 0, 96 * 25.4), App.Rotation())
sketch16.addGeometry(Part.Circle(V(-835.025, 3556, 0), V(0, 0, 1), 101.6), False)
sketch16.addGeometry(Part.Circle(V(-434.975, 1587.5, 0), V(0, 0, 1), 101.6), False)
sketch16.addConstraint(Sketcher.Constraint("Equal", 0, 1))
sketch16.addConstraint(Sketcher.Constraint("Diameter", 0, Q("8 in")))
sketch16.addConstraint(Sketcher.Constraint("DistanceY", -1, 1, 0, 3, Q("140 in")))
sketch16.addConstraint(Sketcher.Constraint("DistanceY", -1, 1, 1, 3, Q("62.5 in")))
sketch16.addConstraint(Sketcher.Constraint("DistanceX", 0, 3, 1, 3, Q("15.75 in")))
sketch16.addConstraint(Sketcher.Constraint("DistanceX", 0, 3, -1, 1, Q("32.875 in")))
pad13 = body6.newObject("PartDesign::Pad", "Pad012")
pad13.Profile = sketch16
pad13.Length = Q("4 in")
pad13.Reversed = True

doc.recompute()
